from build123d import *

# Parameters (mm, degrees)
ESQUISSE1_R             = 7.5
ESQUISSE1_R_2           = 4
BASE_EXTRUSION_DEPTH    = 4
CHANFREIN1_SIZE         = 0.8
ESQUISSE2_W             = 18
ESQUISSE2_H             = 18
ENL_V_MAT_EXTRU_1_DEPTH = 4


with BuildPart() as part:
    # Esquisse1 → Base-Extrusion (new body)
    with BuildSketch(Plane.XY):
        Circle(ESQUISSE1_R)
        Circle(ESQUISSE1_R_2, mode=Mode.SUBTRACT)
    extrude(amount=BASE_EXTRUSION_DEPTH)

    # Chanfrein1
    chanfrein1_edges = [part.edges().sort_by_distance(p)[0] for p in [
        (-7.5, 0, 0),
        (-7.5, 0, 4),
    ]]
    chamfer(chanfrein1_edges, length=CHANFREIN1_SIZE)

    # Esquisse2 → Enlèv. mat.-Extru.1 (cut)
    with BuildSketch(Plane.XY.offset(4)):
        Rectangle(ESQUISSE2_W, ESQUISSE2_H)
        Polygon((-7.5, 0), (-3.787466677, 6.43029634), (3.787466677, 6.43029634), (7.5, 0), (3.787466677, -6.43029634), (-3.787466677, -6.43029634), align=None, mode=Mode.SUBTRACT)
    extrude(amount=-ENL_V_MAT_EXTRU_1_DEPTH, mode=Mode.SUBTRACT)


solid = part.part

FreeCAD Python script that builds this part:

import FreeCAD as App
import Part
import Sketcher
from FreeCAD import Vector
Q = App.Units.Quantity


def edges_at(feature, points):
    """Names of the edges that pass closest to the given points."""
    edges = feature.Shape.Edges
    near = lambda p: min(range(len(edges)), key=lambda i: edges[i].distToShape(Part.Vertex(*p))[0])
    return sorted({f"Edge{near(p) + 1}" for p in points})


def add_polygon(sketch, points):
    """Adds a closed chain of lines whose ends are joined by coincident constraints."""
    first, n = sketch.GeometryCount, len(points)
    for a, b in zip(points, points[1:] + points[:1]):
        sketch.addGeometry(Part.LineSegment(App.Vector(*a, 0), App.Vector(*b, 0)), False)
    for i in range(n):
        sketch.addConstraint(Sketcher.Constraint("Coincident", first + i, 2, first + (i + 1) % n, 1))

doc = App.newDocument("Part")
body = doc.addObject("PartDesign::Body", "Body")

# Sketch on XY plane
sketch1 = body.newObject("Sketcher::SketchObject", "Sketch")
sketch1.AttachmentSupport = (doc.getObject("XY_Plane"), [""])
sketch1.MapMode = "FlatFace"
sketch1.addGeometry([
    Part.Circle(Vector(0, 0, 0), Vector(0, 0, 1), 7.5),
    Part.Circle(Vector(0, 0, 0), Vector(0, 0, 1), 4),
], False)
sketch1.addConstraint([
    Sketcher.Constraint("Coincident", 0, 3, -1, 1),
    Sketcher.Constraint("Coincident", 1, 3, -1, 1),
    Sketcher.Constraint("Diameter", 0, 15.0),
    Sketcher.Constraint("Diameter", 1, 8.0),
])
pad1 = body.newObject("PartDesign::Pad", "Pad")
pad1.Profile = sketch1
pad1.Length = 4
doc.recompute()

chamfer = body.newObject("PartDesign::Chamfer", "Chamfer")
chamfer.Base = (pad1, edges_at(pad1, [(-7.5, 0, 0), (-7.5, 0, 4)]))
chamfer.Size = 0.8

# Sketch on XY plane
sketch2 = body.newObject("Sketcher::SketchObject", "Sketch001")
sketch2.AttachmentSupport = (doc.getObject("XY_Plane"), [""])
sketch2.MapMode = "FlatFace"
sketch2.AttachmentOffset = App.Placement(Vector(0, 0, 4), App.Rotation())
add_polygon(sketch2, [(-9, 9), (-9, -9), (9, -9), (9, 9)])  # lines 0-3
add_polygon(sketch2, [(-4, -6), (-8, 0), (-4, 6), (4, 6), (8, 0), (4, -6)])  # lines 4-9
sketch2.addConstraint([
    Sketcher.Constraint("Vertical", 0),
    Sketcher.Constraint("Horizontal", 1),
    Sketcher.Constraint("Vertical", 2),
    Sketcher.Constraint("Horizontal", 3),
    Sketcher.Constraint("Horizontal", 6),
    Sketcher.Constraint("Horizontal", 9),
    Sketcher.Constraint("Symmetric", 0, 2, 2, 2, -1, 1),
    Sketcher.Constraint("Symmetric", 4, 2, 7, 2, -1, 1),
    Sketcher.Constraint("Symmetric", 5, 2, 8, 2, -1, 1),
    Sketcher.Constraint("PointOnObject", 4, 2, -1),
    Sketcher.Constraint("Parallel", 4, 7),
    Sketcher.Constraint("Vertical", 6, 2, 8, 2),
    Sketcher.Constraint("Equal", 3, 0),
    Sketcher.Constraint("DistanceX", 1, 1, 1, 2, 18.0),
    Sketcher.Constraint("Angle", 4, Q("120 deg")),
    Sketcher.Constraint("DistanceX", 4, 2, 7, 2, 15.0),
    Sketcher.Constraint("DistanceX", 6, 1, 6, 2, 7.574933),
])
pocket1 = body.newObject("PartDesign::Pocket", "Pocket")
pocket1.Profile = sketch2
pocket1.Length = 4

doc.recompute()
